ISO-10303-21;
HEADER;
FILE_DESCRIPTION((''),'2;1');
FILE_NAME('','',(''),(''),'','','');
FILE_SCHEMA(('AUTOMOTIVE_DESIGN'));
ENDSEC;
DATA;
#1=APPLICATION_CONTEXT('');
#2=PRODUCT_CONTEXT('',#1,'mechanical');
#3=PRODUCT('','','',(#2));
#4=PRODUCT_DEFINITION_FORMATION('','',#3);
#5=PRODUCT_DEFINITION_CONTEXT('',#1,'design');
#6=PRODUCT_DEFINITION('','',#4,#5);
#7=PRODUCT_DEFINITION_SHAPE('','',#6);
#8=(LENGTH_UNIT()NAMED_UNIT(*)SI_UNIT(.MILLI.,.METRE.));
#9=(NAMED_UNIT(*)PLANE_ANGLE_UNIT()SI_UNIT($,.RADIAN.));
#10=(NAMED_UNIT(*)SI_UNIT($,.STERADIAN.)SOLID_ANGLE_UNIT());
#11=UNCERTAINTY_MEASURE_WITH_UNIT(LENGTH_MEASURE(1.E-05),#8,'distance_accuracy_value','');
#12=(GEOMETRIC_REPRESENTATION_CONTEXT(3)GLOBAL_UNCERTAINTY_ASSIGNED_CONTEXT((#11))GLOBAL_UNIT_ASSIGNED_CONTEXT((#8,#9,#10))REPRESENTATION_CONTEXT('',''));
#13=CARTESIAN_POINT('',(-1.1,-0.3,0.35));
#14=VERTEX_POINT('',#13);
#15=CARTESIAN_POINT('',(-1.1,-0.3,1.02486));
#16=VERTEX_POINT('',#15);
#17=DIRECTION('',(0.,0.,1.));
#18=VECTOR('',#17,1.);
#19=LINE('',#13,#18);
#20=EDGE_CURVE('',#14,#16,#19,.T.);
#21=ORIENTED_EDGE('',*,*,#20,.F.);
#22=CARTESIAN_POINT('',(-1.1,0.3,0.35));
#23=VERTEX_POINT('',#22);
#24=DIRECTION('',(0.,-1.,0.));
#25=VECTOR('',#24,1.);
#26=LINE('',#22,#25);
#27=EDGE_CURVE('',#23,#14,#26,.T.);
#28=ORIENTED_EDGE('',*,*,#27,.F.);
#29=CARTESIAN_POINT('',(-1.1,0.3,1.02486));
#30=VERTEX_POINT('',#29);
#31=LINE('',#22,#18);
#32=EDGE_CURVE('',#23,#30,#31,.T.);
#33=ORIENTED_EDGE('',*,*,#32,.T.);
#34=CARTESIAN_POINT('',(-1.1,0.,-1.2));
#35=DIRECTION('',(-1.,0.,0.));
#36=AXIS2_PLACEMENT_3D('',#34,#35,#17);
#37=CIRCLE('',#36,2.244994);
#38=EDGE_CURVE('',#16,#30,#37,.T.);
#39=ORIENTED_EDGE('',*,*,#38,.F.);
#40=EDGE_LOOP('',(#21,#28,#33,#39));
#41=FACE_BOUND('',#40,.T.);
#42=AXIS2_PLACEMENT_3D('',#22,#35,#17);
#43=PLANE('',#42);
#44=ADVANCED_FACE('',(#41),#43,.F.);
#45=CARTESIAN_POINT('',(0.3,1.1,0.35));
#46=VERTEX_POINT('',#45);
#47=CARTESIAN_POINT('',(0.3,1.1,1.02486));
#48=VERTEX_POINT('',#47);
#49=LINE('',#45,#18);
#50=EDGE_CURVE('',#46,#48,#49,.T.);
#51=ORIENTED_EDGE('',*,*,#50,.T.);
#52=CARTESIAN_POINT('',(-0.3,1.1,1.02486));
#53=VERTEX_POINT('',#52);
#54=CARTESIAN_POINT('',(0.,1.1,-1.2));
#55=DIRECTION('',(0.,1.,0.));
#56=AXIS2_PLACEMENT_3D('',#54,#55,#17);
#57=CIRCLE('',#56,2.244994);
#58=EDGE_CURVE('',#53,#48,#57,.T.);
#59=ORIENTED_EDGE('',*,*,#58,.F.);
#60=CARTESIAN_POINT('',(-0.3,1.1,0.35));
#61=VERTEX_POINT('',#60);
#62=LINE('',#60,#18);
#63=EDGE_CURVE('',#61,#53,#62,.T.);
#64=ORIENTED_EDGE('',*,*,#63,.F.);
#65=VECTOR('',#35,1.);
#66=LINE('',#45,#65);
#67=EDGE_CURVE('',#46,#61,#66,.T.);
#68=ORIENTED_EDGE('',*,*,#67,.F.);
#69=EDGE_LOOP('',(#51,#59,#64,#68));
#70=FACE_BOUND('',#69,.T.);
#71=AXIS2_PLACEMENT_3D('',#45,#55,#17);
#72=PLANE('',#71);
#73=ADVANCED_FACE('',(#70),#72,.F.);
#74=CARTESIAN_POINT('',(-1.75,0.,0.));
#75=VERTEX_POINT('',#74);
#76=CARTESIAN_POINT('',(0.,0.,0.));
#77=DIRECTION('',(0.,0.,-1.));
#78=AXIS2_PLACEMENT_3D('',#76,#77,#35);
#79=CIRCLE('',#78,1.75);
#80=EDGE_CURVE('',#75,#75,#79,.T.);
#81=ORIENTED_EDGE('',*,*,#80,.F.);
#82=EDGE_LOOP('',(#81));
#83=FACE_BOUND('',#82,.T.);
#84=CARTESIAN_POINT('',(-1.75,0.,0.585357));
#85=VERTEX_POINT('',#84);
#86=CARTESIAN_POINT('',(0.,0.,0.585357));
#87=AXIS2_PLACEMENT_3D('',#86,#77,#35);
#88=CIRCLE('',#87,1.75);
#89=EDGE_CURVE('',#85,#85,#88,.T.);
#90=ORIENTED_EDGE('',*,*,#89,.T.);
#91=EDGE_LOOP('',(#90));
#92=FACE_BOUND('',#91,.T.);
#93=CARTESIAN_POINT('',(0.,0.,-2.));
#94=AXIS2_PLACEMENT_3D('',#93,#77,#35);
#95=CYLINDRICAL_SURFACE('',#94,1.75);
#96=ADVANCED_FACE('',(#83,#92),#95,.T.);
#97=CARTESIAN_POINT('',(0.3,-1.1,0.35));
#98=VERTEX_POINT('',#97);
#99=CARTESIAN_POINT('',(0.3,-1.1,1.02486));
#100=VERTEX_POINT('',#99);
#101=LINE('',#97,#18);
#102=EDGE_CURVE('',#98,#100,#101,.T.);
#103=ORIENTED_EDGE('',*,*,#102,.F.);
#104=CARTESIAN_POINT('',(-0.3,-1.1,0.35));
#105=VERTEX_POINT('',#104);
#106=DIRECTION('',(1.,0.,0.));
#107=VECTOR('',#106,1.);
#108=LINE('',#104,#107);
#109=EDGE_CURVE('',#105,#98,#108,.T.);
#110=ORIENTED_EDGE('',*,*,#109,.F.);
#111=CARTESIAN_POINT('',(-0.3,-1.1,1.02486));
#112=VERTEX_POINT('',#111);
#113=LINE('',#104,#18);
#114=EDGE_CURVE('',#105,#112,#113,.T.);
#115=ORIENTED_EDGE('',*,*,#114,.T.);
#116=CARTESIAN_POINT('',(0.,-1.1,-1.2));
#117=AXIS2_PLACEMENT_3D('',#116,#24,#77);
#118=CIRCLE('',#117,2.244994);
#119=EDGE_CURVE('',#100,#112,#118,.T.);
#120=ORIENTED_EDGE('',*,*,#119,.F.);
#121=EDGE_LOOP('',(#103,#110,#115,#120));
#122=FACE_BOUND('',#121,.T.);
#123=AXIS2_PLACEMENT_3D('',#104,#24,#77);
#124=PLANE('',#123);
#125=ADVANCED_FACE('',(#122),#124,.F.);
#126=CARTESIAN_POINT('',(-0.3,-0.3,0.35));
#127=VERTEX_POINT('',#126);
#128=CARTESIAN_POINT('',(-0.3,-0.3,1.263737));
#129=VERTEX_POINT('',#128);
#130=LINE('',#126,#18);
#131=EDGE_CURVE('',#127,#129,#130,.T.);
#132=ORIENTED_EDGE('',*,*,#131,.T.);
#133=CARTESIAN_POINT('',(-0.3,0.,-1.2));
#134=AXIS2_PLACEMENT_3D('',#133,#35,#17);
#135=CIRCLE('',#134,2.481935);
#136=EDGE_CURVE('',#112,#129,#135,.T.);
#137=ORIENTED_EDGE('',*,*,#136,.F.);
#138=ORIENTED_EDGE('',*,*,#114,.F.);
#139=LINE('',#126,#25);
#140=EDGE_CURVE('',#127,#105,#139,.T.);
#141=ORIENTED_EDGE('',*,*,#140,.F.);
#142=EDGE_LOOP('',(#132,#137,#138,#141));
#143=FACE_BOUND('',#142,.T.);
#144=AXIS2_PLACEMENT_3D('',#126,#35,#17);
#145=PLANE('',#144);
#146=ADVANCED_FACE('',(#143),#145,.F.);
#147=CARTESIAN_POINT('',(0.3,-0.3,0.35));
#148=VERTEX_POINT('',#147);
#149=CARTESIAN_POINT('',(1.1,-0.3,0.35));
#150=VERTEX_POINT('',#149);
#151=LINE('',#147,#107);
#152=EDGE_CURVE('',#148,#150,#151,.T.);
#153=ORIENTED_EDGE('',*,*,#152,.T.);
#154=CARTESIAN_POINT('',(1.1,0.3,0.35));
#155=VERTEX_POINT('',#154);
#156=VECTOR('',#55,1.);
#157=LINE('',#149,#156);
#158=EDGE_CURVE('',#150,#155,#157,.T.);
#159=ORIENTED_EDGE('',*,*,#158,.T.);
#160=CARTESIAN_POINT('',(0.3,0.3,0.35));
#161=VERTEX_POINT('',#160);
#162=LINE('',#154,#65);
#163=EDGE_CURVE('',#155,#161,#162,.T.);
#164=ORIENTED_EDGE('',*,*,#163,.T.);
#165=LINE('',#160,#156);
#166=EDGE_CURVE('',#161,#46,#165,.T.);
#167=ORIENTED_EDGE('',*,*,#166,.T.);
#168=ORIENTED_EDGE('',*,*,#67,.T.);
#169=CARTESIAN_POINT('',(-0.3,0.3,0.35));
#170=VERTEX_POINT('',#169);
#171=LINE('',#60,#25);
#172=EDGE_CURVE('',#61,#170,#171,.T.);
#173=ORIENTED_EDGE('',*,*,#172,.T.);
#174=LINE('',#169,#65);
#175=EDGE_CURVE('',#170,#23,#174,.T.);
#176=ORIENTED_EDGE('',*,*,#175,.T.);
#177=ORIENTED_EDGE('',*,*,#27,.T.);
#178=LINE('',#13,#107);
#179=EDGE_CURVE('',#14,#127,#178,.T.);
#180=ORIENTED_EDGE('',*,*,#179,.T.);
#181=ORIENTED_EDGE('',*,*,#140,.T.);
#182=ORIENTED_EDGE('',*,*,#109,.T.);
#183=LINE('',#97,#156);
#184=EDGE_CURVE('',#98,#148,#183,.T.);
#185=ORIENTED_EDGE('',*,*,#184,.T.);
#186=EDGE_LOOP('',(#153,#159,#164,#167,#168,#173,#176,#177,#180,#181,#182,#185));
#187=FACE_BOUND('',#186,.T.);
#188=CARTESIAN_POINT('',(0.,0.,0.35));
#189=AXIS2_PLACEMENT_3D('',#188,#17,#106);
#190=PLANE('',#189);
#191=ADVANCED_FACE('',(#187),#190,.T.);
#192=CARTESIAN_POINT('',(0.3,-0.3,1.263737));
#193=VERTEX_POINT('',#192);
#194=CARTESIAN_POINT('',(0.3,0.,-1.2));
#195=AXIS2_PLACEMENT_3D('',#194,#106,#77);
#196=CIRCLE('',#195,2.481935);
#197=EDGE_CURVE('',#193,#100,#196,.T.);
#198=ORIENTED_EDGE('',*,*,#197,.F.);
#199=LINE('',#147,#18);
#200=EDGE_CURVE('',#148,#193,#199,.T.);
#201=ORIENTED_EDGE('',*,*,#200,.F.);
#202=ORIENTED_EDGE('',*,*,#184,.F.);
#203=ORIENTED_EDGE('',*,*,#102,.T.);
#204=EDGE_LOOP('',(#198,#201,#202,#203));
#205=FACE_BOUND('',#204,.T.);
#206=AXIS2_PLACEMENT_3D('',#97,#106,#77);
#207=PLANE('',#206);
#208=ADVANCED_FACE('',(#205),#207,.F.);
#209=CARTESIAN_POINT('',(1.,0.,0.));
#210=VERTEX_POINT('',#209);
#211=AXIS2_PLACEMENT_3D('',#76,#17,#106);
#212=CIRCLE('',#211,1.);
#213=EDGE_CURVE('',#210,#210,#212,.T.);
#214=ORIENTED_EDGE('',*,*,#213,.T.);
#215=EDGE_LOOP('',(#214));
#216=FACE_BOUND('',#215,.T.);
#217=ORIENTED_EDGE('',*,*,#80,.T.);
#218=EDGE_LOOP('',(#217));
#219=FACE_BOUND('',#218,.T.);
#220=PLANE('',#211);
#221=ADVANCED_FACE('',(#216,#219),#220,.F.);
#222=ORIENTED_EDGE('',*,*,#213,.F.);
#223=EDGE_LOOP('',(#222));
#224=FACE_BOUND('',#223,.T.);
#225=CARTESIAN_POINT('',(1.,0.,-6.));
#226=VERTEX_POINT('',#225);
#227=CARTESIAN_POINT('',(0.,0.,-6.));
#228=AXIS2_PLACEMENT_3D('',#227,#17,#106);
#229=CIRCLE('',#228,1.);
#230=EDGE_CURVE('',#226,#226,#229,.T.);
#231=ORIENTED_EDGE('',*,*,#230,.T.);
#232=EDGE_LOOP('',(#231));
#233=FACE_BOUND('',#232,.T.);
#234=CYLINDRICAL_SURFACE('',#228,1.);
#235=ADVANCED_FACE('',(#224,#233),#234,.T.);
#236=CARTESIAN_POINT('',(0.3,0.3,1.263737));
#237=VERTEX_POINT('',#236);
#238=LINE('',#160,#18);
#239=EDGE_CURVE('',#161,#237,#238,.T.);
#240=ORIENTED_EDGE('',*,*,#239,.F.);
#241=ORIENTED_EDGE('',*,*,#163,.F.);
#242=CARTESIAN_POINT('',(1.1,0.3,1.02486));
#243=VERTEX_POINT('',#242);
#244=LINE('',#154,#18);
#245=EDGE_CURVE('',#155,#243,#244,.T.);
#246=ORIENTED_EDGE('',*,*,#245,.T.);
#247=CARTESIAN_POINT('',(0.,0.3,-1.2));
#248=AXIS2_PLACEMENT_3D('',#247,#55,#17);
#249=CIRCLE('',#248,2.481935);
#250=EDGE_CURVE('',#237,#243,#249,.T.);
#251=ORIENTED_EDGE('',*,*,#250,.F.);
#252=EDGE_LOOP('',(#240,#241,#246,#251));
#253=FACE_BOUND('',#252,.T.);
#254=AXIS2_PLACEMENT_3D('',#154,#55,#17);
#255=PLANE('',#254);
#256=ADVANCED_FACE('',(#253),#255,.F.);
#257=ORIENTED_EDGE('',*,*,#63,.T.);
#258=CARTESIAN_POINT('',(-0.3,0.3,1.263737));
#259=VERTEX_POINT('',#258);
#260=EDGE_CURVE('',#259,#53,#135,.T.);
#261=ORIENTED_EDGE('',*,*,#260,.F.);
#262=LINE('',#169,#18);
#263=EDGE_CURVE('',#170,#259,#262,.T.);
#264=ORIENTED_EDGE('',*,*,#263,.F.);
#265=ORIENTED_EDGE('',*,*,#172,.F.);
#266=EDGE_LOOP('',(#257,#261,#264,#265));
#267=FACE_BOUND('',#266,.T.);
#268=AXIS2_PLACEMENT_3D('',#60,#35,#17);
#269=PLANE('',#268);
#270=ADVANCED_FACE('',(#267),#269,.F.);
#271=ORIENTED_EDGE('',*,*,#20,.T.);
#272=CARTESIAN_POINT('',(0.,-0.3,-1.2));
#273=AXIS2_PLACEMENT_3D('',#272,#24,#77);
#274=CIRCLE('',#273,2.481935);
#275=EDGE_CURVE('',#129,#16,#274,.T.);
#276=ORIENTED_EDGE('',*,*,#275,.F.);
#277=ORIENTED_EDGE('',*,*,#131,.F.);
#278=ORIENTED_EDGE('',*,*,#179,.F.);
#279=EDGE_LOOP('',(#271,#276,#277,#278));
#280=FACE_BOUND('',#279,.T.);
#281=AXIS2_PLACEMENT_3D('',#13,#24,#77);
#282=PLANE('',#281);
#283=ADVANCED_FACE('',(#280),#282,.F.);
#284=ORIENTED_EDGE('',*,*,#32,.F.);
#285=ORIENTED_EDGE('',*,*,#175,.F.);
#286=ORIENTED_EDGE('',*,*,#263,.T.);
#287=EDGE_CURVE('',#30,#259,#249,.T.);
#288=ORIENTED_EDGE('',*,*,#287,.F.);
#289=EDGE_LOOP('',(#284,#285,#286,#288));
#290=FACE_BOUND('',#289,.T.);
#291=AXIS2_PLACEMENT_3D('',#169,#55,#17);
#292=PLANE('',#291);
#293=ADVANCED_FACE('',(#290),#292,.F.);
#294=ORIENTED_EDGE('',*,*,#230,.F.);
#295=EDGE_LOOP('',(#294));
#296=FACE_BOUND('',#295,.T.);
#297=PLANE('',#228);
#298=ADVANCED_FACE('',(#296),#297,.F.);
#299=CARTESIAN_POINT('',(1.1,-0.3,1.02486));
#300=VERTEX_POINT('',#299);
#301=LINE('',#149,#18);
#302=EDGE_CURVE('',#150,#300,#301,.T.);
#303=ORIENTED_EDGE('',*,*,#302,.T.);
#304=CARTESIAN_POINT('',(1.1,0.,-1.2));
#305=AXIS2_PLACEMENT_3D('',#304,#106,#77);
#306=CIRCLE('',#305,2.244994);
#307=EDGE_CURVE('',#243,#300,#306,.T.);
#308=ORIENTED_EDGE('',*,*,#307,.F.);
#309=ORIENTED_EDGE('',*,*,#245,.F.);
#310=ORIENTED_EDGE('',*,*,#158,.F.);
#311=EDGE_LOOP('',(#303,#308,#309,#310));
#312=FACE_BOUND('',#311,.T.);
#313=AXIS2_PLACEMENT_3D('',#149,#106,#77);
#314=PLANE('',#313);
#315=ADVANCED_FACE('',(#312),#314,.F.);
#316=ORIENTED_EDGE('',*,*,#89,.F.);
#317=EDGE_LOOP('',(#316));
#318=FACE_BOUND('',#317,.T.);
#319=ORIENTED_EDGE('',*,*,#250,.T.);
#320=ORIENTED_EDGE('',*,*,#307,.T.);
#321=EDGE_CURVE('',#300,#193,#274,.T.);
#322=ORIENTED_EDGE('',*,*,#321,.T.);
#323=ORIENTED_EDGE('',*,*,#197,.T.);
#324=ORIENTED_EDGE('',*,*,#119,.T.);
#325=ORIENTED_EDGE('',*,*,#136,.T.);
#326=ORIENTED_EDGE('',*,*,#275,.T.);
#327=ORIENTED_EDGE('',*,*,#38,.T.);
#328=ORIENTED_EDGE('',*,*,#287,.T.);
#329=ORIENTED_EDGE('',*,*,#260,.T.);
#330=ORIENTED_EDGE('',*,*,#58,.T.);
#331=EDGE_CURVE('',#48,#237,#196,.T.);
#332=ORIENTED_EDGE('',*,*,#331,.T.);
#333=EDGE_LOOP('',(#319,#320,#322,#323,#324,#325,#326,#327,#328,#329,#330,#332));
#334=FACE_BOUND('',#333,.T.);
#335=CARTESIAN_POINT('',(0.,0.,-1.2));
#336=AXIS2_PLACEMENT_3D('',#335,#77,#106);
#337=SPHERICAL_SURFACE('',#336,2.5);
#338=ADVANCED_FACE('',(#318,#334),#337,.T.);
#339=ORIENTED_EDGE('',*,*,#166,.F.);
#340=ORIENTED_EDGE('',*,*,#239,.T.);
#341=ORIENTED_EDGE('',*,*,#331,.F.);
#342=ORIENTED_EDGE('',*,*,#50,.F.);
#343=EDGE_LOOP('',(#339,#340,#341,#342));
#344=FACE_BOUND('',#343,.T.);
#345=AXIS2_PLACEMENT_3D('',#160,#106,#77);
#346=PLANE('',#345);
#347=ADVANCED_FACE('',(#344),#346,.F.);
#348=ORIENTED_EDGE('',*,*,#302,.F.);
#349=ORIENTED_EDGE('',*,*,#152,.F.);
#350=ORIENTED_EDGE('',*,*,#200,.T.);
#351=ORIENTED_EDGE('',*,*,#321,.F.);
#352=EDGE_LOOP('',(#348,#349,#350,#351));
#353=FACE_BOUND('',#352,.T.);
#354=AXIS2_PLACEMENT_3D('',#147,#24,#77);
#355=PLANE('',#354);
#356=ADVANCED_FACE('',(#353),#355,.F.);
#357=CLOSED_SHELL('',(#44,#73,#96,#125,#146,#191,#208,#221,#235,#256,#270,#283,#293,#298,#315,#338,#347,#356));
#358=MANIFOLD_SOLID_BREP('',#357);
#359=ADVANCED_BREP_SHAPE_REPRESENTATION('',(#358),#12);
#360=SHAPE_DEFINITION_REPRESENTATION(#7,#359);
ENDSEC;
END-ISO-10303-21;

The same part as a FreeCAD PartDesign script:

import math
import FreeCAD as App
import Part
import Sketcher


def add_polygon(sketch, points):
    """Adds a closed chain of lines whose ends are joined by coincident constraints."""
    first, n = sketch.GeometryCount, len(points)
    for a, b in zip(points, points[1:] + points[:1]):
        sketch.addGeometry(Part.LineSegment(App.Vector(*a, 0), App.Vector(*b, 0)), False)
    for i in range(n):
        sketch.addConstraint(Sketcher.Constraint("Coincident", first + i, 2, first + (i + 1) % n, 1))

doc = App.newDocument("Part")
params = doc.addObject("Spreadsheet::Sheet", "Params")
for row, (alias, value) in enumerate([
    ("sketch1_diameter", "2 mm"),
    ("pad1_length", "6 mm"),
    ("sketch2_radius", "2.5 mm"),
    ("sketch2_height", "1.3 mm"),
    ("sketch2_width", "1.75 mm"),
    ("revolution_angle", "360 deg"),
    ("sketch3_width", "0.6 mm"),
    ("sketch3_width2", "0.8 mm"),
    ("pocket1_length", "0.96 mm"),
], start=1):
    params.set(f"A{row}", alias)
    params.set(f"B{row}", "=" + value)
    params.setAlias(f"B{row}", alias)

body = doc.addObject("PartDesign::Body", "Body")

# Sketch on XY plane
sketch1 = body.newObject("Sketcher::SketchObject", "Sketch")
sketch1.AttachmentSupport = (doc.getObject("XY_Plane"), [""])
sketch1.MapMode = "FlatFace"
sketch1.addGeometry(Part.Circle(App.Vector(0, 0, 0), App.Vector(0, 0, 1), 1), False)
sketch1.addConstraint(Sketcher.Constraint("Coincident", 0, 3, -1, 1))
sketch1.addConstraint(Sketcher.Constraint("Diameter", 0, 2.0))
sketch1.setExpression("Constraints[1]", "Params.sketch1_diameter")
pad1 = body.newObject("PartDesign::Pad", "Pad")
pad1.Profile = sketch1
pad1.setExpression("Length", "Params.pad1_length")
pad1.Reversed = True

# Sketch on XZ plane
sketch2 = body.newObject("Sketcher::SketchObject", "Sketch001")
sketch2.AttachmentSupport = (doc.getObject("XZ_Plane"), [""])
sketch2.MapMode = "FlatFace"
sketch2.addGeometry(Part.LineSegment(App.Vector(1.8, 0, 0), App.Vector(0, 0, 0)), False)
sketch2.addGeometry(Part.LineSegment(App.Vector(0, 0, 0), App.Vector(0, 1.3, 0)), False)
sketch2.addGeometry(Part.ArcOfCircle(Part.Circle(App.Vector(0, -1.2, 0), App.Vector(0, 0, 1), 2.5), math.radians(46), math.radians(90)), False)
sketch2.addGeometry(Part.LineSegment(App.Vector(1.8, 0.6, 0), App.Vector(1.8, 0, 0)), False)
sketch2.addConstraint(Sketcher.Constraint("Coincident", 0, 2, 1, 1))
sketch2.addConstraint(Sketcher.Constraint("Coincident", 1, 2, 2, 2))
sketch2.addConstraint(Sketcher.Constraint("Coincident", 2, 1, 3, 1))
sketch2.addConstraint(Sketcher.Constraint("Coincident", 3, 2, 0, 1))
sketch2.addConstraint(Sketcher.Constraint("Horizontal", 0))
sketch2.addConstraint(Sketcher.Constraint("Vertical", 1))
sketch2.addConstraint(Sketcher.Constraint("Vertical", 3))
sketch2.addConstraint(Sketcher.Constraint("Coincident", 0, 2, -1, 1))
sketch2.addConstraint(Sketcher.Constraint("PointOnObject", 2, 3, -2))
sketch2.addConstraint(Sketcher.Constraint("Radius", 2, 2.5))
sketch2.addConstraint(Sketcher.Constraint("DistanceY", 1, 1, 1, 2, 1.3))
sketch2.addConstraint(Sketcher.Constraint("DistanceX", 0, 2, 0, 1, 1.75))
sketch2.setExpression("Constraints[9]", "Params.sketch2_radius")
sketch2.setExpression("Constraints[10]", "Params.sketch2_height")
sketch2.setExpression("Constraints[11]", "Params.sketch2_width")
revolution = body.newObject("PartDesign::Revolution", "Revolution")
revolution.Profile = sketch2
revolution.ReferenceAxis = (sketch2, ["V_Axis"])
revolution.setExpression("Angle", "Params.revolution_angle")

# Sketch on XY plane
sketch3 = body.newObject("Sketcher::SketchObject", "Sketch002")
sketch3.AttachmentSupport = (doc.getObject("XY_Plane"), [""])
sketch3.MapMode = "FlatFace"
sketch3.AttachmentOffset = App.Placement(App.Vector(0, 0, 1.31), App.Rotation())
add_polygon(sketch3, [(-0.3, -1.1), (0.3, -1.1), (0.3, -0.3), (1.1, -0.3), (1.1, 0.3), (0.3, 0.3), (0.3, 1.1), (-0.3, 1.1), (-0.3, 0.3), (-1.1, 0.3), (-1.1, -0.3), (-0.3, -0.3)])  # lines 0-11
sketch3.addConstraint(Sketcher.Constraint("Horizontal", 0))
sketch3.addConstraint(Sketcher.Constraint("Vertical", 1))
sketch3.addConstraint(Sketcher.Constraint("Horizontal", 2))
sketch3.addConstraint(Sketcher.Constraint("Vertical", 3))
sketch3.addConstraint(Sketcher.Constraint("Horizontal", 4))
sketch3.addConstraint(Sketcher.Constraint("Vertical", 5))
sketch3.addConstraint(Sketcher.Constraint("Horizontal", 6))
sketch3.addConstraint(Sketcher.Constraint("Vertical", 7))
sketch3.addConstraint(Sketcher.Constraint("Horizontal", 8))
sketch3.addConstraint(Sketcher.Constraint("Vertical", 9))
sketch3.addConstraint(Sketcher.Constraint("Horizontal", 10))
sketch3.addConstraint(Sketcher.Constraint("Vertical", 11))
sketch3.addConstraint(Sketcher.Constraint("Symmetric", 0, 2, 6, 2, -1, 1))
sketch3.addConstraint(Sketcher.Constraint("Symmetric", 2, 2, 8, 2, -1, 1))
sketch3.addConstraint(Sketcher.Constraint("Symmetric", 4, 2, 10, 2, -1, 1))
sketch3.addConstraint(Sketcher.Constraint("Symmetric", 4, 2, 7, 2, -2))
sketch3.addConstraint(Sketcher.Constraint("Equal", 10, 1))
sketch3.addConstraint(Sketcher.Constraint("Equal", 6, 3))
sketch3.addConstraint(Sketcher.Constraint("DistanceX", 0, 1, 0, 2, 0.6))
sketch3.addConstraint(Sketcher.Constraint("DistanceX", 2, 1, 2, 2, 0.8))
sketch3.setExpression("Constraints[30]", "Params.sketch3_width")
sketch3.setExpression("Constraints[31]", "Params.sketch3_width2")
pocket1 = body.newObject("PartDesign::Pocket", "Pocket")
pocket1.Profile = sketch3
pocket1.setExpression("Length", "Params.pocket1_length")

doc.recompute()
